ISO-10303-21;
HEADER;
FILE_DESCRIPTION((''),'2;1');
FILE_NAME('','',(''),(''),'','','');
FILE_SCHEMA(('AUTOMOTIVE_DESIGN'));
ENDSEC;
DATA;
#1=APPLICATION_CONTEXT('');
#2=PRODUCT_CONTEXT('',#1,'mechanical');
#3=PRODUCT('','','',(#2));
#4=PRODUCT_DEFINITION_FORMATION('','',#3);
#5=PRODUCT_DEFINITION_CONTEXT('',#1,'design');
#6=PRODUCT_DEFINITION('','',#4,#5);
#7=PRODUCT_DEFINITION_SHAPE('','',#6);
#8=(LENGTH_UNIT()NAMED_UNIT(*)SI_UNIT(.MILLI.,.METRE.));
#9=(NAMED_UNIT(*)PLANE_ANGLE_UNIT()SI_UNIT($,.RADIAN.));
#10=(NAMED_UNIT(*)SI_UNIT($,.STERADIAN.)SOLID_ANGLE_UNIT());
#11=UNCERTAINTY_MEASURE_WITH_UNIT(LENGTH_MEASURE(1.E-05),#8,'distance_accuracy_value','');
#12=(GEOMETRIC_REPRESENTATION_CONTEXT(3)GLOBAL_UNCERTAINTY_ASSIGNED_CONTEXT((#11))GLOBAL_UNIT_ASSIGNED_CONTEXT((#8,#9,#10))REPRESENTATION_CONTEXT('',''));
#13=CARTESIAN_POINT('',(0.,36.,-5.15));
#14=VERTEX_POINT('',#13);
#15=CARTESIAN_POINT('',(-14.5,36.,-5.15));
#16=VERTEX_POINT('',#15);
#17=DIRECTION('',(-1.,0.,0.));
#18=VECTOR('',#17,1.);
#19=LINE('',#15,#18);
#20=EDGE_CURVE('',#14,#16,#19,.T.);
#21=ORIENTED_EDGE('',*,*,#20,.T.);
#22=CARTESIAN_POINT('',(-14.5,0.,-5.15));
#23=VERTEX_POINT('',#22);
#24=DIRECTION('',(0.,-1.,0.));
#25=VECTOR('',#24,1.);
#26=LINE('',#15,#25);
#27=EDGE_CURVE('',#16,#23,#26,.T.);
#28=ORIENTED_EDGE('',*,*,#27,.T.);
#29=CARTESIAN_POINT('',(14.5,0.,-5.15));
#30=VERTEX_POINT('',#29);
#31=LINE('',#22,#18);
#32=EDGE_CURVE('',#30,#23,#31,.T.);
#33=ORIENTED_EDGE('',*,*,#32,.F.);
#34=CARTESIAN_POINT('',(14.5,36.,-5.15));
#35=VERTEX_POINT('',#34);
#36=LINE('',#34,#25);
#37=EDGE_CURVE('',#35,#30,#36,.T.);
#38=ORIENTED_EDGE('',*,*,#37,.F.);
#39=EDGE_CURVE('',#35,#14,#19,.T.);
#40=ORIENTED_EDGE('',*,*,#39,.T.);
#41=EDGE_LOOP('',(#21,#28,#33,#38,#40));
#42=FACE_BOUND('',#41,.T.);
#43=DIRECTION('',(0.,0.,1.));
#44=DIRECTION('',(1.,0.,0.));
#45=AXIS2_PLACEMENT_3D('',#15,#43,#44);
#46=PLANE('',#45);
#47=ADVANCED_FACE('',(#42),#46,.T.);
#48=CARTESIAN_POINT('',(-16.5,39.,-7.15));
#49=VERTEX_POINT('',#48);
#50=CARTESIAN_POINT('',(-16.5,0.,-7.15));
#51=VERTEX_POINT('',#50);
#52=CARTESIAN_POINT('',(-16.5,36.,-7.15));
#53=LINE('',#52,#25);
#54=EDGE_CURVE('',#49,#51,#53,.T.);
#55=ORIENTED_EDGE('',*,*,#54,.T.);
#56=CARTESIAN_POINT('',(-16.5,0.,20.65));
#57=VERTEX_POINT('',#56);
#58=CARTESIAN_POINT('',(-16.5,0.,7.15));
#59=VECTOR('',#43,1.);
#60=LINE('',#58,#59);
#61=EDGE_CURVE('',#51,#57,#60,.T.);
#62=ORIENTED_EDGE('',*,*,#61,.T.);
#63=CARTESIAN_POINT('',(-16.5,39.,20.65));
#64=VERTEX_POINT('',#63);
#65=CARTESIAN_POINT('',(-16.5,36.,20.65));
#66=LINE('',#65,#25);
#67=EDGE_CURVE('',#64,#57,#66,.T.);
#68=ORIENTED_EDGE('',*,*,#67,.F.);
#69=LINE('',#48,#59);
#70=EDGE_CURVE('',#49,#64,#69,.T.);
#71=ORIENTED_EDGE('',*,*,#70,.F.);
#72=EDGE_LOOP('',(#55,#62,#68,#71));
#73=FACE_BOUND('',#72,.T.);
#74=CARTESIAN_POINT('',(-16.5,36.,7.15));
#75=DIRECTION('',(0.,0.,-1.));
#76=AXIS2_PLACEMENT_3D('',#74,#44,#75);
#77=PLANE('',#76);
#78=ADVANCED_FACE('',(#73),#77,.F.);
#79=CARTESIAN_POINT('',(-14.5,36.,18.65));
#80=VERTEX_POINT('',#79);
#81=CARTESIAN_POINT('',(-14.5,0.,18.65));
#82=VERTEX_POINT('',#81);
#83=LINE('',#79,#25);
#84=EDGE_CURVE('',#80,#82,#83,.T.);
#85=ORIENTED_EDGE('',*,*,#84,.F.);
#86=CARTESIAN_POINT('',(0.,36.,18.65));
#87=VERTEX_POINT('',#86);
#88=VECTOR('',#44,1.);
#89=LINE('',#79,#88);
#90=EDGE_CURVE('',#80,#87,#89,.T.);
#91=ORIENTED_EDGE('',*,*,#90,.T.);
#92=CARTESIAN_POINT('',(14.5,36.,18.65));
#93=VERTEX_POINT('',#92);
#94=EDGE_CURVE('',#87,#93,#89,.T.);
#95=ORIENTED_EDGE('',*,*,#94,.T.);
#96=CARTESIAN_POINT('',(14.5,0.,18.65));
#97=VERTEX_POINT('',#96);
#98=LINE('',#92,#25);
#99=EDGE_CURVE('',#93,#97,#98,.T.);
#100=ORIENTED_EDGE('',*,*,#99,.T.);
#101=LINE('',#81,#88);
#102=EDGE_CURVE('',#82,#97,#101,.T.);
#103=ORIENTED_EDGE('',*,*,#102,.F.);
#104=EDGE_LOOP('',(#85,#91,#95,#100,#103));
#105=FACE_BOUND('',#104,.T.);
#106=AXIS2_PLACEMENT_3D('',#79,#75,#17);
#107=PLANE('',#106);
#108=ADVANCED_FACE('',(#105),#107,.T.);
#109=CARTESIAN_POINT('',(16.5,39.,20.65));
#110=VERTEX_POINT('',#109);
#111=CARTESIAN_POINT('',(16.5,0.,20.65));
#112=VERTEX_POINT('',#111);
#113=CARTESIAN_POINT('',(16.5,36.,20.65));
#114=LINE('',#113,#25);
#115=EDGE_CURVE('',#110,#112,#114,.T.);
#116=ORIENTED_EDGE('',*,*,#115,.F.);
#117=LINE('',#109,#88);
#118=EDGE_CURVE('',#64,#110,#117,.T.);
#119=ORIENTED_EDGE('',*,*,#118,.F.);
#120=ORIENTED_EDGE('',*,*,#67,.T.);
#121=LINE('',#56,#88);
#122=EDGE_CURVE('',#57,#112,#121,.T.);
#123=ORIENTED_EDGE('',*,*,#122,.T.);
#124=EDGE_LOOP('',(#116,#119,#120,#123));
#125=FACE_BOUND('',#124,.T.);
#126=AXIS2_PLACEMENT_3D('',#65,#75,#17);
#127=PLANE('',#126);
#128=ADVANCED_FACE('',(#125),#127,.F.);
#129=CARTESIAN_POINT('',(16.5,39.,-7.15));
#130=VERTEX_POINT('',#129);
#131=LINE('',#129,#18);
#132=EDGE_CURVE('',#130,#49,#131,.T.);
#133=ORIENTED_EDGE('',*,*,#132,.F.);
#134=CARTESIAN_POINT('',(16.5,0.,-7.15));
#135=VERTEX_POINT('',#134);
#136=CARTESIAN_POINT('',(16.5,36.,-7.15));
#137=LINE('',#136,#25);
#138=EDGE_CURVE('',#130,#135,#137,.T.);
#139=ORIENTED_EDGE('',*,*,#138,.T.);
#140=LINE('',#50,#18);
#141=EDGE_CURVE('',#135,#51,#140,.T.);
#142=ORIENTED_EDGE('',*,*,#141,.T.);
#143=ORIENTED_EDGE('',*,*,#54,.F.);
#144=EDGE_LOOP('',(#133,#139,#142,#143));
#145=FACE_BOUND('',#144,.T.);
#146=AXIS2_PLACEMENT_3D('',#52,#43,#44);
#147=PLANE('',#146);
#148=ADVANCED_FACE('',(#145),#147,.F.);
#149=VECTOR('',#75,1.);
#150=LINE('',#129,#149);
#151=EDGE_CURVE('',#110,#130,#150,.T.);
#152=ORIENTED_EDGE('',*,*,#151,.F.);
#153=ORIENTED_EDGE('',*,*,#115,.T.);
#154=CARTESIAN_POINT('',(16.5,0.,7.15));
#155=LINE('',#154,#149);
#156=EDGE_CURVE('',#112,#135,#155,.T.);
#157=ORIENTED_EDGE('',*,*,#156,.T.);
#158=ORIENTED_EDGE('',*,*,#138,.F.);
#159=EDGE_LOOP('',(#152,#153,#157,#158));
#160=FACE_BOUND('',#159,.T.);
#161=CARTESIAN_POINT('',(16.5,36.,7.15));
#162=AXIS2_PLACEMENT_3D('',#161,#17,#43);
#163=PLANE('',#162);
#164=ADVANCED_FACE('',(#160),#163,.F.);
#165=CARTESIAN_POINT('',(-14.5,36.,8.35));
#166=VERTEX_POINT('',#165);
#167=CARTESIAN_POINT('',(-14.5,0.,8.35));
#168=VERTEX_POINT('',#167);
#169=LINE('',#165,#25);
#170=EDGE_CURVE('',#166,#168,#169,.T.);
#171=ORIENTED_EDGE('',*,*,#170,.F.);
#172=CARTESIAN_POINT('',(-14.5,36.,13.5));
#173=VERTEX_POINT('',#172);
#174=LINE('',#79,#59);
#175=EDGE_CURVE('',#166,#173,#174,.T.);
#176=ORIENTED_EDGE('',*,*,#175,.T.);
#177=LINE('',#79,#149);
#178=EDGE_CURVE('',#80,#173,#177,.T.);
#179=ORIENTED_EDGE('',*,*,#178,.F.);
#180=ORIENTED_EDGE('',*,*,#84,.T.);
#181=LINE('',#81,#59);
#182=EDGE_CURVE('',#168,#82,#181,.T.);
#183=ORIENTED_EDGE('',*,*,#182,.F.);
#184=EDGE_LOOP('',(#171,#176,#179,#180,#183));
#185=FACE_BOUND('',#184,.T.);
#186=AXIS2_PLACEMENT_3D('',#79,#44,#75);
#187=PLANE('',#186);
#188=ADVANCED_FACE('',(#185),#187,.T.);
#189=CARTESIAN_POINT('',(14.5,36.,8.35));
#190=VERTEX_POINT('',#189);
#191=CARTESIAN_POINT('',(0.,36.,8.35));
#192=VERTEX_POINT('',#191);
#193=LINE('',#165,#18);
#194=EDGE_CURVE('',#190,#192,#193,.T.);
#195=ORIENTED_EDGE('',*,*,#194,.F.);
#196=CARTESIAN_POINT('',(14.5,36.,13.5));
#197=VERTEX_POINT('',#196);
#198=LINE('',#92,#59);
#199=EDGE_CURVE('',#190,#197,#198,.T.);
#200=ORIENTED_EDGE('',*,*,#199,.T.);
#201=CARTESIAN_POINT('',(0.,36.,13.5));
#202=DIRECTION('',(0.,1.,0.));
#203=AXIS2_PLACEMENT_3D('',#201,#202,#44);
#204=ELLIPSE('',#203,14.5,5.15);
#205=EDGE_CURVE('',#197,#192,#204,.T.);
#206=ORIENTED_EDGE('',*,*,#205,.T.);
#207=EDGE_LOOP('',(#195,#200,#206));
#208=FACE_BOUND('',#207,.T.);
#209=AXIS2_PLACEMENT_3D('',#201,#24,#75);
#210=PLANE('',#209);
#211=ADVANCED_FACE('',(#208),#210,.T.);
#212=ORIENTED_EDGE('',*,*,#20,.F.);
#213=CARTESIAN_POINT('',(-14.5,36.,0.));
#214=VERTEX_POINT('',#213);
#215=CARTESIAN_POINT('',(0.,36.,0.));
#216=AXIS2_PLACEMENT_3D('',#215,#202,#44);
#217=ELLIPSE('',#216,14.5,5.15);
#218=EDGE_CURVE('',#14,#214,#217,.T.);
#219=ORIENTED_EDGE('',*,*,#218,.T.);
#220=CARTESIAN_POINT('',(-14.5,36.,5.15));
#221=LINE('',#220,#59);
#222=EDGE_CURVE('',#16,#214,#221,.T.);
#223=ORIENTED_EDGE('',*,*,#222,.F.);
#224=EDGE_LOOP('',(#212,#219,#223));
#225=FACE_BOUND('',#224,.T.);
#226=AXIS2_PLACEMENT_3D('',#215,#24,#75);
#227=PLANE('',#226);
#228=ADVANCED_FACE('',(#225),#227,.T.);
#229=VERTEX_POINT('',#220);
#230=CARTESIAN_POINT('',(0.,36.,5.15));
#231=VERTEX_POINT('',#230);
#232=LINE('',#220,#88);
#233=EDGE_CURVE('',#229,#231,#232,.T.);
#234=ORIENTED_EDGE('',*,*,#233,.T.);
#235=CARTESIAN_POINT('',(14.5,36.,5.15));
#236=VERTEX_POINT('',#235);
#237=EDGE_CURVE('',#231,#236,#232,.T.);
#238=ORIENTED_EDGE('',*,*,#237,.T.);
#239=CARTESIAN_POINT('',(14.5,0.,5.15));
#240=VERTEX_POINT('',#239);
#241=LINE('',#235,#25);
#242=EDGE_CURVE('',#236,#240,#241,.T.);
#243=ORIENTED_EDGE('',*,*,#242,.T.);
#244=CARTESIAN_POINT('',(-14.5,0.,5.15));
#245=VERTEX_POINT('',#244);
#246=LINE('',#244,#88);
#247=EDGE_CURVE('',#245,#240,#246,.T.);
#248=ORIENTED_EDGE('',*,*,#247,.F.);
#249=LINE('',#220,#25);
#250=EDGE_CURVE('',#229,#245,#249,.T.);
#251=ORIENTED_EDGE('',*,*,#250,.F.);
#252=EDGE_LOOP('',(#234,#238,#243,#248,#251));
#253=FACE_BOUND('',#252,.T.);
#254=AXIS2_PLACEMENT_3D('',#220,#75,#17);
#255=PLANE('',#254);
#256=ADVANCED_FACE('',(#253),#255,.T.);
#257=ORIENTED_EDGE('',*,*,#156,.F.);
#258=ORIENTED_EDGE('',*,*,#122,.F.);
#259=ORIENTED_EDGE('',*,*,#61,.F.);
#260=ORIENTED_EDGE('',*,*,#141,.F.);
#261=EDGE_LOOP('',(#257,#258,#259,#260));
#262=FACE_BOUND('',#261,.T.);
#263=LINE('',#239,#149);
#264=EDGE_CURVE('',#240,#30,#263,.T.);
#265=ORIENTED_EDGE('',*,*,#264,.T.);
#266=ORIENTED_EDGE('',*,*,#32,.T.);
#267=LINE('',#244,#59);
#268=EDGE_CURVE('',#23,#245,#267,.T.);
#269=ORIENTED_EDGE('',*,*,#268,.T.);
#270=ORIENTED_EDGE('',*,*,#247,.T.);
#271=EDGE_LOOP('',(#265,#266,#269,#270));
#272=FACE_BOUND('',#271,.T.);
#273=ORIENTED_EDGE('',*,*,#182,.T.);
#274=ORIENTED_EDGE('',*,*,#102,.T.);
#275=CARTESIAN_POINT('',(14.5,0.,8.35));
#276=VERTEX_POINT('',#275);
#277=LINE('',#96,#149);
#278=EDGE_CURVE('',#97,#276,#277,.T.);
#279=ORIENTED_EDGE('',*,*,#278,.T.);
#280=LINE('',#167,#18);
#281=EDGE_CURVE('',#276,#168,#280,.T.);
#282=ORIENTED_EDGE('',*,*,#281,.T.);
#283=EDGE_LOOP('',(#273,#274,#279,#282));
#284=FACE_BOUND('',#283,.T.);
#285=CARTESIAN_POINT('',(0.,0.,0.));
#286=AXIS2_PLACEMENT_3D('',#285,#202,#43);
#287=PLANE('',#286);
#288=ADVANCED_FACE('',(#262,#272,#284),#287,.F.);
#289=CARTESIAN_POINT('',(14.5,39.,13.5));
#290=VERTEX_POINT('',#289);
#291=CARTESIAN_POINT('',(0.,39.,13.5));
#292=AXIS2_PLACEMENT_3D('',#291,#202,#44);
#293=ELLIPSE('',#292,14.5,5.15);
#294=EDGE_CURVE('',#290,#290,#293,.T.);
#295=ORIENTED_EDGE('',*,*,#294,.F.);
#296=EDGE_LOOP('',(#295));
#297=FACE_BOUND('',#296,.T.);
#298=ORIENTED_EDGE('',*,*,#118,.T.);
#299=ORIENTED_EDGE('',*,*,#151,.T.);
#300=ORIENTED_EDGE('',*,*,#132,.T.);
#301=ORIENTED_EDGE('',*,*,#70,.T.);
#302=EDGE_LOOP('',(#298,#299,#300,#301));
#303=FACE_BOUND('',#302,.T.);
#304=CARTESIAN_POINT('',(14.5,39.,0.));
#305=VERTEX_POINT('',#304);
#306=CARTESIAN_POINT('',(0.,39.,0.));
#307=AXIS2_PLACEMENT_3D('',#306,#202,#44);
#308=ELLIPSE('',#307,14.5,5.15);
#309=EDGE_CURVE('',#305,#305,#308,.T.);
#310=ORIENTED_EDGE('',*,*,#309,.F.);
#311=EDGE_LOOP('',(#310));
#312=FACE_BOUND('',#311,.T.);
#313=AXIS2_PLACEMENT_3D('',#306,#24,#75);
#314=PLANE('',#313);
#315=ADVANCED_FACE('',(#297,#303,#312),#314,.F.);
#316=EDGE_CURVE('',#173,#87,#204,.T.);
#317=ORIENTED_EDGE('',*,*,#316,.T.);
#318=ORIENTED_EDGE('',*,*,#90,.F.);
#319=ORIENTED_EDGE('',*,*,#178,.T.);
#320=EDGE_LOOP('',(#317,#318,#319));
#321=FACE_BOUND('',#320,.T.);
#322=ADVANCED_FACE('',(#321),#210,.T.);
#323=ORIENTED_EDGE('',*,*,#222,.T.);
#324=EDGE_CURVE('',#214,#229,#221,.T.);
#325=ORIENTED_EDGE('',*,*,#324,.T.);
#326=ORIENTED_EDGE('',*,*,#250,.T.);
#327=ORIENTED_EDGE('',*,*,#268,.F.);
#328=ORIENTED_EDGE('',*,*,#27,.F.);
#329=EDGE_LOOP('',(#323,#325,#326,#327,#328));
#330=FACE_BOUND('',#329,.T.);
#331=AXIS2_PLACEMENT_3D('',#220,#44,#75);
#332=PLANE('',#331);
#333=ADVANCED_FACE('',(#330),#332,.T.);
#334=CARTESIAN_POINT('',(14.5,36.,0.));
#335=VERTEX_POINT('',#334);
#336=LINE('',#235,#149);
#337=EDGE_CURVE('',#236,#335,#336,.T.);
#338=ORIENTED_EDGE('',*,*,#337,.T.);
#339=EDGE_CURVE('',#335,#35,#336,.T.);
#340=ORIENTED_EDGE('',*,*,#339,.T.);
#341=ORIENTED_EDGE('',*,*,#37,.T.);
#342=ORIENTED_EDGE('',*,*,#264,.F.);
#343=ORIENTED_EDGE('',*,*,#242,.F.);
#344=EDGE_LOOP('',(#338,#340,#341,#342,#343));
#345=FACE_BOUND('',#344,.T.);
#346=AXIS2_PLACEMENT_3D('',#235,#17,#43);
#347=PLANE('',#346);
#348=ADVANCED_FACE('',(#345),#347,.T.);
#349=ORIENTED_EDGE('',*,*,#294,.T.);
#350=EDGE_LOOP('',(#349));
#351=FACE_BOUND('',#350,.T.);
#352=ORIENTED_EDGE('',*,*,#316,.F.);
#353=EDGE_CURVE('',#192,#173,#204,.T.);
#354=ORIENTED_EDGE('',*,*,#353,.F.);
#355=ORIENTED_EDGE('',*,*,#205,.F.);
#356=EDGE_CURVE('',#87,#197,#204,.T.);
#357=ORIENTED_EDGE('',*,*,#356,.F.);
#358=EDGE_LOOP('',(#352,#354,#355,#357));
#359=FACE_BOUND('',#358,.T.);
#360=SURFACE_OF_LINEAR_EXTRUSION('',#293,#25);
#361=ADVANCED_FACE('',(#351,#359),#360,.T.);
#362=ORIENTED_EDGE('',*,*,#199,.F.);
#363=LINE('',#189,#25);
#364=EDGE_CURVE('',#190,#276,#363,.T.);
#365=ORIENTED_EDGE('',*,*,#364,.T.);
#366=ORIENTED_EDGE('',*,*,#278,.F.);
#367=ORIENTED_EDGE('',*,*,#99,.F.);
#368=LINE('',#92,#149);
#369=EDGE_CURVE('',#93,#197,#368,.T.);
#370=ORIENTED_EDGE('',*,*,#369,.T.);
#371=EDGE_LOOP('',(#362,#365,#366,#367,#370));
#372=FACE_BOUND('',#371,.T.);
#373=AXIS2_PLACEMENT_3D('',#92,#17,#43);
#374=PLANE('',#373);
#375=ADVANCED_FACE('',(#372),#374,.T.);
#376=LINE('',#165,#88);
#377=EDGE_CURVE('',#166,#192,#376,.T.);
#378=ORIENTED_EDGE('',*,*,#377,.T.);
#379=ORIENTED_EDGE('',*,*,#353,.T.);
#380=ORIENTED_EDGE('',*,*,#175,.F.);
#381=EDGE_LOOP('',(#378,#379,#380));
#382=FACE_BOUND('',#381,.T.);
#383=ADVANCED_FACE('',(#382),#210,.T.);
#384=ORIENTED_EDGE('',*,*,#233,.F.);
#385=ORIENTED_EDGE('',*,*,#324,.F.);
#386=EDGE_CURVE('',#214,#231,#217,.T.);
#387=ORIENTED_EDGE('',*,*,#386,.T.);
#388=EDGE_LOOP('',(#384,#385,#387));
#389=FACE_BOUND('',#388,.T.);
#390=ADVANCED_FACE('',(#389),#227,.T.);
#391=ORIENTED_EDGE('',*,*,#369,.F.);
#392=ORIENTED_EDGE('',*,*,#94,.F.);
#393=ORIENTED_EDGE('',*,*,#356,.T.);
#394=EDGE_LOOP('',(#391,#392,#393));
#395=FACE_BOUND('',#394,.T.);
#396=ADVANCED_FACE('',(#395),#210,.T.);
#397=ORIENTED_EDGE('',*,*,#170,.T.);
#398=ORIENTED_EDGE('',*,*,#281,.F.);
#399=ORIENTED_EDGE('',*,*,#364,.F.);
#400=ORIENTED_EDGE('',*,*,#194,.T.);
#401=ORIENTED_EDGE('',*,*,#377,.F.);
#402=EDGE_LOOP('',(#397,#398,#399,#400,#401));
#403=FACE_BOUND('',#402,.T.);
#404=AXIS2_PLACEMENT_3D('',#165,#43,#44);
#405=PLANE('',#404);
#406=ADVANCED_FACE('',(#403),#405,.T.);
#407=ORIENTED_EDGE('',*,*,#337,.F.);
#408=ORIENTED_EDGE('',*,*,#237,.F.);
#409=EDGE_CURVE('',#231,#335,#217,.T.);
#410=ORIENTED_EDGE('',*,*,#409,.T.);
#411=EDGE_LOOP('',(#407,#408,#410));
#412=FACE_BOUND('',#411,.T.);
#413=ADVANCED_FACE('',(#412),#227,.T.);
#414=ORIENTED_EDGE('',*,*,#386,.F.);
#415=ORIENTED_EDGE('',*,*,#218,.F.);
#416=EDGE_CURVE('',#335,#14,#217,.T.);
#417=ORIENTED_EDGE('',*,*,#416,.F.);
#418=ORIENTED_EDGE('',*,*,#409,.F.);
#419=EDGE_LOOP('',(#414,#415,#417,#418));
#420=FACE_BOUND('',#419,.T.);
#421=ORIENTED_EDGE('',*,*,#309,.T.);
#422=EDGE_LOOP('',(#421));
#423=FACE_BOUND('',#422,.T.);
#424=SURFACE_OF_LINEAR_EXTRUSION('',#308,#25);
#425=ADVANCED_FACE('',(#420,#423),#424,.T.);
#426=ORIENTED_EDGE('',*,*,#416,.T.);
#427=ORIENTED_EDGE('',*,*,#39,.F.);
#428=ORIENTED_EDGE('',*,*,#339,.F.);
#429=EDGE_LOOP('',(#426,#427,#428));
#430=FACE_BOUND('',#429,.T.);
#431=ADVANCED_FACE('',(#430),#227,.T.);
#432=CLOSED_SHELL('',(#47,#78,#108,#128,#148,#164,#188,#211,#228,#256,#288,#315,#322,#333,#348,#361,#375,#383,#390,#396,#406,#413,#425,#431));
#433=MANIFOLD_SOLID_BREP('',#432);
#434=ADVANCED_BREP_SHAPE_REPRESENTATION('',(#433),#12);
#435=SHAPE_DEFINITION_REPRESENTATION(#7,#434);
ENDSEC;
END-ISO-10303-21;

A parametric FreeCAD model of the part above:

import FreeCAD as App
import Part
import Sketcher
from FreeCAD import Vector


def add_polygon(sketch, points):
    """Adds a closed chain of lines whose ends are joined by coincident constraints."""
    first, n = sketch.GeometryCount, len(points)
    for a, b in zip(points, points[1:] + points[:1]):
        sketch.addGeometry(Part.LineSegment(App.Vector(*a, 0), App.Vector(*b, 0)), False)
    for i in range(n):
        sketch.addConstraint(Sketcher.Constraint("Coincident", first + i, 2, first + (i + 1) % n, 1))

doc = App.newDocument("Part")
body = doc.addObject("PartDesign::Body", "Body")

# Sketch on XZ plane
sketch1 = body.newObject("Sketcher::SketchObject", "Sketch")
sketch1.AttachmentSupport = (doc.getObject("XZ_Plane"), [""])
sketch1.MapMode = "FlatFace"
add_polygon(sketch1, [(-16, -7), (-16, 7), (16, 7), (16, -7)])  # lines 0-3
add_polygon(sketch1, [(14, 5), (-14, 5), (-14, -5), (14, -5)])  # lines 4-7
sketch1.addConstraint([
    Sketcher.Constraint("Vertical", 0),
    Sketcher.Constraint("Horizontal", 1),
    Sketcher.Constraint("Vertical", 2),
    Sketcher.Constraint("Horizontal", 3),
    Sketcher.Constraint("Horizontal", 4),
    Sketcher.Constraint("Vertical", 5),
    Sketcher.Constraint("Horizontal", 6),
    Sketcher.Constraint("Vertical", 7),
    Sketcher.Constraint("Symmetric", 0, 2, 2, 2, -1, 1),
    Sketcher.Constraint("Symmetric", 4, 2, 6, 2, -1, 1),
    Sketcher.Constraint("DistanceX", 1, 1, 1, 2, 33.0),
    Sketcher.Constraint("DistanceX", 4, 2, 4, 1, 29.0),
    Sketcher.Constraint("DistanceY", 0, 1, 0, 2, 14.3),
    Sketcher.Constraint("DistanceY", 5, 2, 5, 1, 10.3),
])
pad1 = body.newObject("PartDesign::Pad", "Pad")
pad1.Profile = sketch1
pad1.Length = 36
pad1.Reversed = True

# Sketch on XZ plane
sketch2 = body.newObject("Sketcher::SketchObject", "Sketch001")
sketch2.AttachmentSupport = (doc.getObject("XZ_Plane"), [""])
sketch2.MapMode = "FlatFace"
sketch2.AttachmentOffset = App.Placement(Vector(0, 0, -36), App.Rotation())
add_polygon(sketch2, [(-16.5, -7.15), (-16.5, 7.15), (16.5, 7.15), (16.5, -7.15)])  # lines 0-3
sketch2.addGeometry(Part.Ellipse(Vector(14.5, 0, 0), Vector(0, 5.15, 0), Vector(0, 0, 0)), False)  # 4
sketch2.addConstraint([
    Sketcher.Constraint("Block", 4),
    Sketcher.Constraint("Vertical", 0),
    Sketcher.Constraint("Horizontal", 1),
    Sketcher.Constraint("Vertical", 2),
    Sketcher.Constraint("Horizontal", 3),
    Sketcher.Constraint("Symmetric", 0, 2, 2, 2, -1, 1),
    Sketcher.Constraint("DistanceX", 1, 1, 1, 2, 33.0),
    Sketcher.Constraint("DistanceY", 0, 1, 0, 2, 14.3),
])
pad2 = body.newObject("PartDesign::Pad", "Pad001")
pad2.Profile = sketch2
pad2.Length = 3
pad2.Reversed = True
doc.recompute()

linearpattern = body.newObject("PartDesign::LinearPattern", "LinearPattern")
linearpattern.Originals = [pad1, pad2]
linearpattern.Direction = (doc.getObject("Z_Axis"), [""])
linearpattern.Mode = "offset"
linearpattern.Offset = 13.5
linearpattern.Occurrences = 2
body.Tip = linearpattern

doc.recompute()
